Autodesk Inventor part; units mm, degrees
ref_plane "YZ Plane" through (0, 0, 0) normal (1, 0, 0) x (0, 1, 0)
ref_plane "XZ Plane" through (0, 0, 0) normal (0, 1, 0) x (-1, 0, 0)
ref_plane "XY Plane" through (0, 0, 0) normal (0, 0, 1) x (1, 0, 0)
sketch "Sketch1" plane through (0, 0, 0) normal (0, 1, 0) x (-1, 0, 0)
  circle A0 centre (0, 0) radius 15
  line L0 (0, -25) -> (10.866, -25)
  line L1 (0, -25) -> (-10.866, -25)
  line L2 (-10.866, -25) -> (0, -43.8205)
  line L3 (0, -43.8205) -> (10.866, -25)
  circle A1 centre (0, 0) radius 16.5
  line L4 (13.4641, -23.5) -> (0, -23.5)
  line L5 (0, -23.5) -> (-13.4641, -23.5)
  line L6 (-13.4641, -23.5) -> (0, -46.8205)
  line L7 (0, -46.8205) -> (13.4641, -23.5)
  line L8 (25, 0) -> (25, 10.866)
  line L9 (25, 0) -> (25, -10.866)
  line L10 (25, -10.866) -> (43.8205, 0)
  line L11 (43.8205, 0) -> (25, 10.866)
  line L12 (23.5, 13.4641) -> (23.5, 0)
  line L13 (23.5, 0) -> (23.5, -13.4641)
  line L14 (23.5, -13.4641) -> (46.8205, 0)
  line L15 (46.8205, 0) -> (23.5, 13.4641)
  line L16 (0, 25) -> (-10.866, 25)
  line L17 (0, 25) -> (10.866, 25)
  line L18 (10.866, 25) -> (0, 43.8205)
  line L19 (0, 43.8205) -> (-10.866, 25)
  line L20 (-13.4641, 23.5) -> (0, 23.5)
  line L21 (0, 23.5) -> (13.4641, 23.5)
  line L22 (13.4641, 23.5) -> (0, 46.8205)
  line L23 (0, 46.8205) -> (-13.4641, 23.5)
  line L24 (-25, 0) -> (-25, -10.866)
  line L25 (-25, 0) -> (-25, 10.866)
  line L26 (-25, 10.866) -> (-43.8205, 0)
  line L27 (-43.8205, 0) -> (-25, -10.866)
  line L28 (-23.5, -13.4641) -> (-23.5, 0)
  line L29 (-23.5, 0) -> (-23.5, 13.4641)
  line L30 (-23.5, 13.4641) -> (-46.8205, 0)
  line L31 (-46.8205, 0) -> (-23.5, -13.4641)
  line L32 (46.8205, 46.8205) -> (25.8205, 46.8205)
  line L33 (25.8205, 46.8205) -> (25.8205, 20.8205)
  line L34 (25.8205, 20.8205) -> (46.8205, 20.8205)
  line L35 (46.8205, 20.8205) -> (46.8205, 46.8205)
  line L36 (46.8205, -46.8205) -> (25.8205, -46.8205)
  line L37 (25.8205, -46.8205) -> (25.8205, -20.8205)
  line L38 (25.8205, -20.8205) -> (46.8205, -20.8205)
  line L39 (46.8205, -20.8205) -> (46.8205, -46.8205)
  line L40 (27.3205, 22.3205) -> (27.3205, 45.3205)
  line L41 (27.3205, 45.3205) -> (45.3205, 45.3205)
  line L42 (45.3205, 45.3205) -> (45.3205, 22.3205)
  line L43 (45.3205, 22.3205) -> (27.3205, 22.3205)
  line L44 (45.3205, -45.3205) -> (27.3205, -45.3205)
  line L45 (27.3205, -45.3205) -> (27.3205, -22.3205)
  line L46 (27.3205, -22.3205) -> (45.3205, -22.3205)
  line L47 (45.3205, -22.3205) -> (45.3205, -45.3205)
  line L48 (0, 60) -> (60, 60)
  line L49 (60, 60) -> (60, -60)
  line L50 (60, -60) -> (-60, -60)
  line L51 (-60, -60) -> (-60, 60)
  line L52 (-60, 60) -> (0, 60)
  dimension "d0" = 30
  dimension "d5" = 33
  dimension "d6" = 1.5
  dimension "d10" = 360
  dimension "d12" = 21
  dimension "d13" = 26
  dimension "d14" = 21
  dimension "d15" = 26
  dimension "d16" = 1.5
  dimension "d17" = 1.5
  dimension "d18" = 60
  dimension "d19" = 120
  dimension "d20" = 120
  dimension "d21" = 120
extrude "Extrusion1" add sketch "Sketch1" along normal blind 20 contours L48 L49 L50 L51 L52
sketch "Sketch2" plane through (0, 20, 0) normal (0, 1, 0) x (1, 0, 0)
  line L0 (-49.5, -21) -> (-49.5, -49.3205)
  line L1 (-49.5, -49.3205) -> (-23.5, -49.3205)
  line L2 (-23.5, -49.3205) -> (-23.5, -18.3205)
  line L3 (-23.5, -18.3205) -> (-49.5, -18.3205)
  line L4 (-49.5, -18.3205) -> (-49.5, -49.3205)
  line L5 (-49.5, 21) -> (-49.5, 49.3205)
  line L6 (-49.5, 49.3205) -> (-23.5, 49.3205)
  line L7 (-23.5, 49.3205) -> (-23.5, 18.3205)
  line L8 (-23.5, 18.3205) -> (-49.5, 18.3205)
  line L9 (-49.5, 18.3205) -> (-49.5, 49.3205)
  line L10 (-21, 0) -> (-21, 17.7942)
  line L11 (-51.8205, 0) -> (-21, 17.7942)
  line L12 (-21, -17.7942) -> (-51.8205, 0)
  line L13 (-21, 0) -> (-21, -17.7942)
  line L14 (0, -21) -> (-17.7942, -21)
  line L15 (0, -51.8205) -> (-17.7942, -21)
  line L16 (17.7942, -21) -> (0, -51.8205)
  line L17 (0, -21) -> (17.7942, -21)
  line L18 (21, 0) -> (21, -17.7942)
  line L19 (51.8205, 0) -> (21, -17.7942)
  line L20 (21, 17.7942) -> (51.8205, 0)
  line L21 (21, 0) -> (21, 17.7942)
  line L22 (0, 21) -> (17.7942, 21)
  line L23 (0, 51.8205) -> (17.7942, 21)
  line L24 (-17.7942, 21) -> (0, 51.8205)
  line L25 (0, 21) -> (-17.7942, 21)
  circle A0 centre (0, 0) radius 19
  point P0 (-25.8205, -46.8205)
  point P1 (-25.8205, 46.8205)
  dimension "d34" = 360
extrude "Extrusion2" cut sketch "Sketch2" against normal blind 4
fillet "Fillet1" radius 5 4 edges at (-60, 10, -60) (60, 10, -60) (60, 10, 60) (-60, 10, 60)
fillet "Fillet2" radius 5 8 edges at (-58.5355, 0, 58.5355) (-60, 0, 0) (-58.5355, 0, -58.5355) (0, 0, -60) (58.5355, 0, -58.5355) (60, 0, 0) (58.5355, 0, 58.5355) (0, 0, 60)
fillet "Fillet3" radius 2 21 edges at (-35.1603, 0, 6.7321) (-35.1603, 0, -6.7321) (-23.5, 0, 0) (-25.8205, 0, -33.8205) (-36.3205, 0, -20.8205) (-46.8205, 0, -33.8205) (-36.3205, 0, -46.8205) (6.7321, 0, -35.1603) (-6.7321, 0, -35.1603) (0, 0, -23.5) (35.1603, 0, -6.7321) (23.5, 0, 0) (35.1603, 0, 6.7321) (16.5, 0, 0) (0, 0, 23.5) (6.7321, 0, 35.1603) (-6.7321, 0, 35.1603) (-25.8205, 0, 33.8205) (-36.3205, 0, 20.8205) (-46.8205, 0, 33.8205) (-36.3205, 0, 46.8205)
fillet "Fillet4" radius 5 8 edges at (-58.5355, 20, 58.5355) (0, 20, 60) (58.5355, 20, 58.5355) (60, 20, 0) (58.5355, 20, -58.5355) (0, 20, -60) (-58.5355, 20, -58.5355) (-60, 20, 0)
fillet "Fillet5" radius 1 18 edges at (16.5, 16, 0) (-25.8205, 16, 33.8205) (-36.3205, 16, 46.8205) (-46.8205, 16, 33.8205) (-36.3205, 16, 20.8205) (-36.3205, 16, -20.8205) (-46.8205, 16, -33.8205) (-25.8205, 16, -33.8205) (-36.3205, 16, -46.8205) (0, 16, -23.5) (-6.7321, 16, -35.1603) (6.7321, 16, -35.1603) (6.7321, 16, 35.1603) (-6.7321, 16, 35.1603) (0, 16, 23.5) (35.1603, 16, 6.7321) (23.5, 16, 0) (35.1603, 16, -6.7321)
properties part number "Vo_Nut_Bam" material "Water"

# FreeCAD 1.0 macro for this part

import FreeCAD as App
import Part
import Sketcher

V = App.Vector
Q = App.Units.Quantity


def edges_at(feature, points):
    """Names of the edges that pass closest to the given points."""
    edges = feature.Shape.Edges
    near = lambda p: min(range(len(edges)), key=lambda i: edges[i].distToShape(Part.Vertex(*p))[0])
    return sorted({f"Edge{near(p) + 1}" for p in points})


def add_polygon(sketch, points):
    """Adds a closed chain of lines whose ends are joined by coincident constraints."""
    first, n = sketch.GeometryCount, len(points)
    for a, b in zip(points, points[1:] + points[:1]):
        sketch.addGeometry(Part.LineSegment(App.Vector(*a, 0), App.Vector(*b, 0)), False)
    for i in range(n):
        sketch.addConstraint(Sketcher.Constraint("Coincident", first + i, 2, first + (i + 1) % n, 1))

doc = App.newDocument("Part")
body = doc.addObject("PartDesign::Body", "Body")

sketch1 = body.newObject("Sketcher::SketchObject", "Sketch")
sketch1.AttachmentSupport = (doc.getObject("XZ_Plane"), [""])
sketch1.MapMode = "FlatFace"
add_polygon(sketch1, [(-60, 60), (60, 60), (60, -60), (-60, -60)])
add_polygon(sketch1, [(13, -24), (-13, -24), (0, -47)])
add_polygon(sketch1, [(-47, -21), (-47, -47), (-26, -47), (-26, -21)])
add_polygon(sketch1, [(24, 13), (24, -13), (47, 0)])
sketch1.addGeometry(Part.Circle(V(0, 0, 0), V(0, 0, 1), 16), False)
add_polygon(sketch1, [(-24, -13), (-24, 13), (-47, 0)])
add_polygon(sketch1, [(-13, 24), (13, 24), (0, 47)])
add_polygon(sketch1, [(-26, 47), (-47, 47), (-47, 21), (-26, 21)])
sketch1.addConstraint([
    Sketcher.Constraint("Horizontal", 0),
    Sketcher.Constraint("Vertical", 1),
    Sketcher.Constraint("Horizontal", 2),
    Sketcher.Constraint("Vertical", 3),
    Sketcher.Constraint("Horizontal", 4),
    Sketcher.Constraint("Vertical", 7),
    Sketcher.Constraint("Horizontal", 8),
    Sketcher.Constraint("Vertical", 9),
    Sketcher.Constraint("Horizontal", 10),
    Sketcher.Constraint("Vertical", 11),
    Sketcher.Constraint("Vertical", 15),
    Sketcher.Constraint("Horizontal", 18),
    Sketcher.Constraint("Horizontal", 21),
    Sketcher.Constraint("Vertical", 22),
    Sketcher.Constraint("Horizontal", 23),
    Sketcher.Constraint("Vertical", 24),
    Sketcher.Constraint("Coincident", 14, 3, -1, 1),
    Sketcher.Constraint("Symmetric", 0, 2, 2, 2, -1, 1),
    Sketcher.Constraint("Symmetric", 11, 2, 15, 2, -1, 1),
    Sketcher.Constraint("Symmetric", 12, 2, 16, 2, -1, 1),
    Sketcher.Constraint("Symmetric", 4, 2, 18, 2, -1, 1),
    Sketcher.Constraint("Symmetric", 5, 2, 19, 2, -1, 1),
    Sketcher.Constraint("Symmetric", 7, 2, 21, 2, -1),
    Sketcher.Constraint("Symmetric", 9, 2, 23, 2, -1),
    Sketcher.Constraint("PointOnObject", 5, 2, -2),
    Sketcher.Constraint("PointOnObject", 12, 2, -1),
    Sketcher.Constraint("Perpendicular", 5, 12),
    Sketcher.Constraint("Perpendicular", 6, 13),
    Sketcher.Constraint("Parallel", 13, 17),
    Sketcher.Constraint("Perpendicular", 17, 20),
    Sketcher.Constraint("Horizontal", 5, 2, 7, 2),
    Sketcher.Constraint("Horizontal", 13, 2, 15, 2),
    Sketcher.Constraint("Vertical", 10, 2, 16, 2),
    Sketcher.Constraint("Equal", 2, 1),
    Sketcher.Constraint("Equal", 18, 11),
    Sketcher.Constraint("Diameter", 14, Q("33 mm")),
    Sketcher.Constraint("DistanceX", 0, 1, 0, 2, Q("120 mm")),
    Sketcher.Constraint("DistanceX", 8, 1, 8, 2, Q("21 mm")),
    Sketcher.Constraint("DistanceY", 7, 2, 7, 1, Q("26 mm")),
    Sketcher.Constraint("Angle", 5, Q("-60 deg")),
    Sketcher.Constraint("DistanceX", 15, 2, 13, 2, Q("47 mm")),
    Sketcher.Constraint("DistanceY", 4, 2, -1, 1, Q("23.5 mm")),
    Sketcher.Constraint("DistanceX", 4, 2, 4, 1, Q("26.9282 mm")),
])
pad1 = body.newObject("PartDesign::Pad", "Pad")
pad1.Profile = sketch1
pad1.Length = 20
pad1.Reversed = True

sketch2 = body.newObject("Sketcher::SketchObject", "Sketch001")
sketch2.AttachmentSupport = (doc.getObject("XZ_Plane"), [""])
sketch2.MapMode = "FlatFace"
sketch2.AttachmentOffset = App.Placement(V(0, 0, -20), App.Rotation())
add_polygon(sketch2, [(-50, 18), (-50, 49), (-24, 49), (-24, 18)])
add_polygon(sketch2, [(-50, -49), (-50, -18), (-24, -18), (-24, -49)])
add_polygon(sketch2, [(-21, 18), (-21, -18), (-52, 0)])
add_polygon(sketch2, [(18, 21), (-18, 21), (0, 52)])
add_polygon(sketch2, [(21, -18), (21, 18), (52, 0)])
add_polygon(sketch2, [(-18, -21), (18, -21), (0, -52)])
sketch2.addGeometry(Part.Circle(V(0, 0, 0), V(0, 0, 1), 19), False)
sketch2.addConstraint([
    Sketcher.Constraint("Vertical", 0),
    Sketcher.Constraint("Horizontal", 1),
    Sketcher.Constraint("Vertical", 2),
    Sketcher.Constraint("Horizontal", 3),
    Sketcher.Constraint("Vertical", 4),
    Sketcher.Constraint("Horizontal", 5),
    Sketcher.Constraint("Vertical", 6),
    Sketcher.Constraint("Horizontal", 7),
    Sketcher.Constraint("Vertical", 8),
    Sketcher.Constraint("Horizontal", 11),
    Sketcher.Constraint("Vertical", 14),
    Sketcher.Constraint("Horizontal", 17),
    Sketcher.Constraint("Coincident", 20, 3, -1, 1),
    Sketcher.Constraint("Symmetric", 8, 2, 14, 2, -1, 1),
    Sketcher.Constraint("Symmetric", 9, 2, 15, 2, -1, 1),
    Sketcher.Constraint("Symmetric", 11, 2, 17, 2, -1, 1),
    Sketcher.Constraint("Symmetric", 12, 2, 18, 2, -1, 1),
    Sketcher.Constraint("Symmetric", 3, 2, 4, 2, -1),
    Sketcher.Constraint("Symmetric", 1, 2, 6, 2, -1),
    Sketcher.Constraint("PointOnObject", 9, 2, -1),
    Sketcher.Constraint("PointOnObject", 12, 2, -2),
    Sketcher.Constraint("Perpendicular", 9, 12),
    Sketcher.Constraint("Perpendicular", 10, 13),
    Sketcher.Constraint("Perpendicular", 13, 16),
    Sketcher.Constraint("Perpendicular", 16, 19),
    Sketcher.Constraint("Horizontal", 10, 2, 14, 2),
    Sketcher.Constraint("Equal", 17, 8),
    Sketcher.Constraint("Diameter", 20, Q("38 mm")),
    Sketcher.Constraint("DistanceX", 1, 1, 1, 2, Q("26 mm")),
    Sketcher.Constraint("DistanceY", 0, 1, 0, 2, Q("31 mm")),
    Sketcher.Constraint("Angle", 9, Q("150 deg")),
    Sketcher.Constraint("DistanceX", 8, 2, -1, 1, Q("21 mm")),
    Sketcher.Constraint("DistanceY", -1, 1, 11, 2, Q("21 mm")),
    Sketcher.Constraint("DistanceX", 0, 2, -1, 1, Q("49.5 mm")),
    Sketcher.Constraint("DistanceY", 1, 2, 12, 2, Q("2.5 mm")),
    Sketcher.Constraint("DistanceX", 11, 2, 11, 1, Q("35.5884 mm")),
])
pocket1 = body.newObject("PartDesign::Pocket", "Pocket")
pocket1.Profile = sketch2
pocket1.Length = 4
pocket1.Reversed = True
doc.recompute()

fillet = body.newObject("PartDesign::Fillet", "Fillet")
fillet.Base = (pocket1, edges_at(pocket1, [
    (-60, 10, -60),
    (60, 10, -60),
    (60, 10, 60),
    (-60, 10, 60),
]))
fillet.Radius = 5
doc.recompute()

fillet2 = body.newObject("PartDesign::Fillet", "Fillet001")
fillet2.Base = (fillet, edges_at(fillet, [
    (-58.535, 0, 58.535),
    (-60, 0, 0),
    (-58.535, 0, -58.535),
    (0, 0, -60),
    (58.535, 0, -58.535),
    (60, 0, 0),
    (58.535, 0, 58.535),
    (0, 0, 60),
]))
fillet2.Radius = 5
doc.recompute()

fillet3 = body.newObject("PartDesign::Fillet", "Fillet002")
fillet3.Base = (fillet2, edges_at(fillet2, [
    (-35.16, 0, 6.732),
    (-35.16, 0, -6.732),
    (-23.5, 0, 0),
    (-25.82, 0, -33.821),
    (-36.321, 0, -20.82),
    (-46.821, 0, -33.821),
    (-36.321, 0, -46.821),
    (6.732, 0, -35.16),
    (-6.732, 0, -35.16),
    (0, 0, -23.5),
    (35.16, 0, -6.732),
    (23.5, 0, 0),
    (35.16, 0, 6.732),
    (16.5, 0, 0),
    (0, 0, 23.5),
    (6.732, 0, 35.16),
    (-6.732, 0, 35.16),
    (-25.82, 0, 33.821),
    (-36.321, 0, 20.82),
    (-46.821, 0, 33.821),
    (-36.321, 0, 46.821),
]))
fillet3.Radius = 2
doc.recompute()

fillet4 = body.newObject("PartDesign::Fillet", "Fillet003")
fillet4.Base = (fillet3, edges_at(fillet3, [
    (-58.535, 20, 58.535),
    (0, 20, 60),
    (58.535, 20, 58.535),
    (60, 20, 0),
    (58.535, 20, -58.535),
    (0, 20, -60),
    (-58.535, 20, -58.535),
    (-60, 20, 0),
]))
fillet4.Radius = 5
doc.recompute()

fillet5 = body.newObject("PartDesign::Fillet", "Fillet004")
fillet5.Base = (fillet4, edges_at(fillet4, [
    (16.5, 16, 0),
    (-25.82, 16, 33.821),
    (-36.321, 16, 46.821),
    (-46.821, 16, 33.821),
    (-36.321, 16, 20.82),
    (-36.321, 16, -20.82),
    (-46.821, 16, -33.821),
    (-25.82, 16, -33.821),
    (-36.321, 16, -46.821),
    (0, 16, -23.5),
    (-6.732, 16, -35.16),
    (6.732, 16, -35.16),
    (6.732, 16, 35.16),
    (-6.732, 16, 35.16),
    (0, 16, 23.5),
    (35.16, 16, 6.732),
    (23.5, 16, 0),
    (35.16, 16, -6.732),
]))
fillet5.Radius = 1

doc.recompute()
